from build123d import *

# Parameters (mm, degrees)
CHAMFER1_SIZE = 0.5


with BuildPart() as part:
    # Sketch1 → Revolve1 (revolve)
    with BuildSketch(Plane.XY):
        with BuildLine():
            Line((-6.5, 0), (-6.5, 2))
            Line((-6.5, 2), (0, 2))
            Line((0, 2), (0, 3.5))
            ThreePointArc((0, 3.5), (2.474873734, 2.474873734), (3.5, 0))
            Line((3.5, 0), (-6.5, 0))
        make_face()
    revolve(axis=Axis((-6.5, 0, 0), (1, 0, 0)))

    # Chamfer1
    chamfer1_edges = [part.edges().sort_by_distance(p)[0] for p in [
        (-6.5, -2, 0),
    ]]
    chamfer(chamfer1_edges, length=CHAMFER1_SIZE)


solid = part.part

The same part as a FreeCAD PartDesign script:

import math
import FreeCAD as App
import Part
import Sketcher
from FreeCAD import Vector
Q = App.Units.Quantity


def edges_at(feature, points):
    """Names of the edges that pass closest to the given points."""
    edges = feature.Shape.Edges
    near = lambda p: min(range(len(edges)), key=lambda i: edges[i].distToShape(Part.Vertex(*p))[0])
    return sorted({f"Edge{near(p) + 1}" for p in points})

doc = App.newDocument("Part")
body = doc.addObject("PartDesign::Body", "Body")

# Sketch on XY plane
sketch1 = body.newObject("Sketcher::SketchObject", "Sketch")
sketch1.AttachmentSupport = (doc.getObject("XY_Plane"), [""])
sketch1.MapMode = "FlatFace"
sketch1.addGeometry([
    Part.LineSegment(Vector(-6.5, 2, 0), Vector(-6.5, 0, 0)),  # 0
    Part.LineSegment(Vector(-6.5, 0, 0), Vector(3.5, 0, 0)),  # 1
    Part.ArcOfCircle(Part.Circle(Vector(0, 0, 0), Vector(0, 0, 1), 3.5), math.radians(0), math.radians(90)),  # 2
    Part.LineSegment(Vector(0, 3.5, 0), Vector(0, 2, 0)),  # 3
    Part.LineSegment(Vector(0, 2, 0), Vector(-6.5, 2, 0)),  # 4
], False)
sketch1.addConstraint([
    Sketcher.Constraint("Coincident", 0, 2, 1, 1),
    Sketcher.Constraint("Coincident", 1, 2, 2, 1),
    Sketcher.Constraint("Coincident", 2, 2, 3, 1),
    Sketcher.Constraint("Coincident", 3, 2, 4, 1),
    Sketcher.Constraint("Coincident", 4, 2, 0, 1),
    Sketcher.Constraint("Vertical", 0),
    Sketcher.Constraint("Horizontal", 1),
    Sketcher.Constraint("Vertical", 3),
    Sketcher.Constraint("Horizontal", 4),
    Sketcher.Constraint("Coincident", 2, 3, -1, 1),
    Sketcher.Constraint("PointOnObject", 0, 2, -1),
    Sketcher.Constraint("PointOnObject", 2, 2, -2),
    Sketcher.Constraint("Radius", 2, Q("3.5 mm")),
    Sketcher.Constraint("DistanceX", 1, 1, 1, 2, Q("10 mm")),
    Sketcher.Constraint("DistanceY", 0, 2, 0, 1, Q("2 mm")),
])
revolution = body.newObject("PartDesign::Revolution", "Revolution")
revolution.Profile = sketch1
revolution.ReferenceAxis = (sketch1, ["H_Axis"])
revolution.Angle = 360
doc.recompute()

chamfer = body.newObject("PartDesign::Chamfer", "Chamfer")
chamfer.Base = (revolution, edges_at(revolution, [(-6.5, -2, 0)]))
chamfer.Size = 0.5

doc.recompute()
